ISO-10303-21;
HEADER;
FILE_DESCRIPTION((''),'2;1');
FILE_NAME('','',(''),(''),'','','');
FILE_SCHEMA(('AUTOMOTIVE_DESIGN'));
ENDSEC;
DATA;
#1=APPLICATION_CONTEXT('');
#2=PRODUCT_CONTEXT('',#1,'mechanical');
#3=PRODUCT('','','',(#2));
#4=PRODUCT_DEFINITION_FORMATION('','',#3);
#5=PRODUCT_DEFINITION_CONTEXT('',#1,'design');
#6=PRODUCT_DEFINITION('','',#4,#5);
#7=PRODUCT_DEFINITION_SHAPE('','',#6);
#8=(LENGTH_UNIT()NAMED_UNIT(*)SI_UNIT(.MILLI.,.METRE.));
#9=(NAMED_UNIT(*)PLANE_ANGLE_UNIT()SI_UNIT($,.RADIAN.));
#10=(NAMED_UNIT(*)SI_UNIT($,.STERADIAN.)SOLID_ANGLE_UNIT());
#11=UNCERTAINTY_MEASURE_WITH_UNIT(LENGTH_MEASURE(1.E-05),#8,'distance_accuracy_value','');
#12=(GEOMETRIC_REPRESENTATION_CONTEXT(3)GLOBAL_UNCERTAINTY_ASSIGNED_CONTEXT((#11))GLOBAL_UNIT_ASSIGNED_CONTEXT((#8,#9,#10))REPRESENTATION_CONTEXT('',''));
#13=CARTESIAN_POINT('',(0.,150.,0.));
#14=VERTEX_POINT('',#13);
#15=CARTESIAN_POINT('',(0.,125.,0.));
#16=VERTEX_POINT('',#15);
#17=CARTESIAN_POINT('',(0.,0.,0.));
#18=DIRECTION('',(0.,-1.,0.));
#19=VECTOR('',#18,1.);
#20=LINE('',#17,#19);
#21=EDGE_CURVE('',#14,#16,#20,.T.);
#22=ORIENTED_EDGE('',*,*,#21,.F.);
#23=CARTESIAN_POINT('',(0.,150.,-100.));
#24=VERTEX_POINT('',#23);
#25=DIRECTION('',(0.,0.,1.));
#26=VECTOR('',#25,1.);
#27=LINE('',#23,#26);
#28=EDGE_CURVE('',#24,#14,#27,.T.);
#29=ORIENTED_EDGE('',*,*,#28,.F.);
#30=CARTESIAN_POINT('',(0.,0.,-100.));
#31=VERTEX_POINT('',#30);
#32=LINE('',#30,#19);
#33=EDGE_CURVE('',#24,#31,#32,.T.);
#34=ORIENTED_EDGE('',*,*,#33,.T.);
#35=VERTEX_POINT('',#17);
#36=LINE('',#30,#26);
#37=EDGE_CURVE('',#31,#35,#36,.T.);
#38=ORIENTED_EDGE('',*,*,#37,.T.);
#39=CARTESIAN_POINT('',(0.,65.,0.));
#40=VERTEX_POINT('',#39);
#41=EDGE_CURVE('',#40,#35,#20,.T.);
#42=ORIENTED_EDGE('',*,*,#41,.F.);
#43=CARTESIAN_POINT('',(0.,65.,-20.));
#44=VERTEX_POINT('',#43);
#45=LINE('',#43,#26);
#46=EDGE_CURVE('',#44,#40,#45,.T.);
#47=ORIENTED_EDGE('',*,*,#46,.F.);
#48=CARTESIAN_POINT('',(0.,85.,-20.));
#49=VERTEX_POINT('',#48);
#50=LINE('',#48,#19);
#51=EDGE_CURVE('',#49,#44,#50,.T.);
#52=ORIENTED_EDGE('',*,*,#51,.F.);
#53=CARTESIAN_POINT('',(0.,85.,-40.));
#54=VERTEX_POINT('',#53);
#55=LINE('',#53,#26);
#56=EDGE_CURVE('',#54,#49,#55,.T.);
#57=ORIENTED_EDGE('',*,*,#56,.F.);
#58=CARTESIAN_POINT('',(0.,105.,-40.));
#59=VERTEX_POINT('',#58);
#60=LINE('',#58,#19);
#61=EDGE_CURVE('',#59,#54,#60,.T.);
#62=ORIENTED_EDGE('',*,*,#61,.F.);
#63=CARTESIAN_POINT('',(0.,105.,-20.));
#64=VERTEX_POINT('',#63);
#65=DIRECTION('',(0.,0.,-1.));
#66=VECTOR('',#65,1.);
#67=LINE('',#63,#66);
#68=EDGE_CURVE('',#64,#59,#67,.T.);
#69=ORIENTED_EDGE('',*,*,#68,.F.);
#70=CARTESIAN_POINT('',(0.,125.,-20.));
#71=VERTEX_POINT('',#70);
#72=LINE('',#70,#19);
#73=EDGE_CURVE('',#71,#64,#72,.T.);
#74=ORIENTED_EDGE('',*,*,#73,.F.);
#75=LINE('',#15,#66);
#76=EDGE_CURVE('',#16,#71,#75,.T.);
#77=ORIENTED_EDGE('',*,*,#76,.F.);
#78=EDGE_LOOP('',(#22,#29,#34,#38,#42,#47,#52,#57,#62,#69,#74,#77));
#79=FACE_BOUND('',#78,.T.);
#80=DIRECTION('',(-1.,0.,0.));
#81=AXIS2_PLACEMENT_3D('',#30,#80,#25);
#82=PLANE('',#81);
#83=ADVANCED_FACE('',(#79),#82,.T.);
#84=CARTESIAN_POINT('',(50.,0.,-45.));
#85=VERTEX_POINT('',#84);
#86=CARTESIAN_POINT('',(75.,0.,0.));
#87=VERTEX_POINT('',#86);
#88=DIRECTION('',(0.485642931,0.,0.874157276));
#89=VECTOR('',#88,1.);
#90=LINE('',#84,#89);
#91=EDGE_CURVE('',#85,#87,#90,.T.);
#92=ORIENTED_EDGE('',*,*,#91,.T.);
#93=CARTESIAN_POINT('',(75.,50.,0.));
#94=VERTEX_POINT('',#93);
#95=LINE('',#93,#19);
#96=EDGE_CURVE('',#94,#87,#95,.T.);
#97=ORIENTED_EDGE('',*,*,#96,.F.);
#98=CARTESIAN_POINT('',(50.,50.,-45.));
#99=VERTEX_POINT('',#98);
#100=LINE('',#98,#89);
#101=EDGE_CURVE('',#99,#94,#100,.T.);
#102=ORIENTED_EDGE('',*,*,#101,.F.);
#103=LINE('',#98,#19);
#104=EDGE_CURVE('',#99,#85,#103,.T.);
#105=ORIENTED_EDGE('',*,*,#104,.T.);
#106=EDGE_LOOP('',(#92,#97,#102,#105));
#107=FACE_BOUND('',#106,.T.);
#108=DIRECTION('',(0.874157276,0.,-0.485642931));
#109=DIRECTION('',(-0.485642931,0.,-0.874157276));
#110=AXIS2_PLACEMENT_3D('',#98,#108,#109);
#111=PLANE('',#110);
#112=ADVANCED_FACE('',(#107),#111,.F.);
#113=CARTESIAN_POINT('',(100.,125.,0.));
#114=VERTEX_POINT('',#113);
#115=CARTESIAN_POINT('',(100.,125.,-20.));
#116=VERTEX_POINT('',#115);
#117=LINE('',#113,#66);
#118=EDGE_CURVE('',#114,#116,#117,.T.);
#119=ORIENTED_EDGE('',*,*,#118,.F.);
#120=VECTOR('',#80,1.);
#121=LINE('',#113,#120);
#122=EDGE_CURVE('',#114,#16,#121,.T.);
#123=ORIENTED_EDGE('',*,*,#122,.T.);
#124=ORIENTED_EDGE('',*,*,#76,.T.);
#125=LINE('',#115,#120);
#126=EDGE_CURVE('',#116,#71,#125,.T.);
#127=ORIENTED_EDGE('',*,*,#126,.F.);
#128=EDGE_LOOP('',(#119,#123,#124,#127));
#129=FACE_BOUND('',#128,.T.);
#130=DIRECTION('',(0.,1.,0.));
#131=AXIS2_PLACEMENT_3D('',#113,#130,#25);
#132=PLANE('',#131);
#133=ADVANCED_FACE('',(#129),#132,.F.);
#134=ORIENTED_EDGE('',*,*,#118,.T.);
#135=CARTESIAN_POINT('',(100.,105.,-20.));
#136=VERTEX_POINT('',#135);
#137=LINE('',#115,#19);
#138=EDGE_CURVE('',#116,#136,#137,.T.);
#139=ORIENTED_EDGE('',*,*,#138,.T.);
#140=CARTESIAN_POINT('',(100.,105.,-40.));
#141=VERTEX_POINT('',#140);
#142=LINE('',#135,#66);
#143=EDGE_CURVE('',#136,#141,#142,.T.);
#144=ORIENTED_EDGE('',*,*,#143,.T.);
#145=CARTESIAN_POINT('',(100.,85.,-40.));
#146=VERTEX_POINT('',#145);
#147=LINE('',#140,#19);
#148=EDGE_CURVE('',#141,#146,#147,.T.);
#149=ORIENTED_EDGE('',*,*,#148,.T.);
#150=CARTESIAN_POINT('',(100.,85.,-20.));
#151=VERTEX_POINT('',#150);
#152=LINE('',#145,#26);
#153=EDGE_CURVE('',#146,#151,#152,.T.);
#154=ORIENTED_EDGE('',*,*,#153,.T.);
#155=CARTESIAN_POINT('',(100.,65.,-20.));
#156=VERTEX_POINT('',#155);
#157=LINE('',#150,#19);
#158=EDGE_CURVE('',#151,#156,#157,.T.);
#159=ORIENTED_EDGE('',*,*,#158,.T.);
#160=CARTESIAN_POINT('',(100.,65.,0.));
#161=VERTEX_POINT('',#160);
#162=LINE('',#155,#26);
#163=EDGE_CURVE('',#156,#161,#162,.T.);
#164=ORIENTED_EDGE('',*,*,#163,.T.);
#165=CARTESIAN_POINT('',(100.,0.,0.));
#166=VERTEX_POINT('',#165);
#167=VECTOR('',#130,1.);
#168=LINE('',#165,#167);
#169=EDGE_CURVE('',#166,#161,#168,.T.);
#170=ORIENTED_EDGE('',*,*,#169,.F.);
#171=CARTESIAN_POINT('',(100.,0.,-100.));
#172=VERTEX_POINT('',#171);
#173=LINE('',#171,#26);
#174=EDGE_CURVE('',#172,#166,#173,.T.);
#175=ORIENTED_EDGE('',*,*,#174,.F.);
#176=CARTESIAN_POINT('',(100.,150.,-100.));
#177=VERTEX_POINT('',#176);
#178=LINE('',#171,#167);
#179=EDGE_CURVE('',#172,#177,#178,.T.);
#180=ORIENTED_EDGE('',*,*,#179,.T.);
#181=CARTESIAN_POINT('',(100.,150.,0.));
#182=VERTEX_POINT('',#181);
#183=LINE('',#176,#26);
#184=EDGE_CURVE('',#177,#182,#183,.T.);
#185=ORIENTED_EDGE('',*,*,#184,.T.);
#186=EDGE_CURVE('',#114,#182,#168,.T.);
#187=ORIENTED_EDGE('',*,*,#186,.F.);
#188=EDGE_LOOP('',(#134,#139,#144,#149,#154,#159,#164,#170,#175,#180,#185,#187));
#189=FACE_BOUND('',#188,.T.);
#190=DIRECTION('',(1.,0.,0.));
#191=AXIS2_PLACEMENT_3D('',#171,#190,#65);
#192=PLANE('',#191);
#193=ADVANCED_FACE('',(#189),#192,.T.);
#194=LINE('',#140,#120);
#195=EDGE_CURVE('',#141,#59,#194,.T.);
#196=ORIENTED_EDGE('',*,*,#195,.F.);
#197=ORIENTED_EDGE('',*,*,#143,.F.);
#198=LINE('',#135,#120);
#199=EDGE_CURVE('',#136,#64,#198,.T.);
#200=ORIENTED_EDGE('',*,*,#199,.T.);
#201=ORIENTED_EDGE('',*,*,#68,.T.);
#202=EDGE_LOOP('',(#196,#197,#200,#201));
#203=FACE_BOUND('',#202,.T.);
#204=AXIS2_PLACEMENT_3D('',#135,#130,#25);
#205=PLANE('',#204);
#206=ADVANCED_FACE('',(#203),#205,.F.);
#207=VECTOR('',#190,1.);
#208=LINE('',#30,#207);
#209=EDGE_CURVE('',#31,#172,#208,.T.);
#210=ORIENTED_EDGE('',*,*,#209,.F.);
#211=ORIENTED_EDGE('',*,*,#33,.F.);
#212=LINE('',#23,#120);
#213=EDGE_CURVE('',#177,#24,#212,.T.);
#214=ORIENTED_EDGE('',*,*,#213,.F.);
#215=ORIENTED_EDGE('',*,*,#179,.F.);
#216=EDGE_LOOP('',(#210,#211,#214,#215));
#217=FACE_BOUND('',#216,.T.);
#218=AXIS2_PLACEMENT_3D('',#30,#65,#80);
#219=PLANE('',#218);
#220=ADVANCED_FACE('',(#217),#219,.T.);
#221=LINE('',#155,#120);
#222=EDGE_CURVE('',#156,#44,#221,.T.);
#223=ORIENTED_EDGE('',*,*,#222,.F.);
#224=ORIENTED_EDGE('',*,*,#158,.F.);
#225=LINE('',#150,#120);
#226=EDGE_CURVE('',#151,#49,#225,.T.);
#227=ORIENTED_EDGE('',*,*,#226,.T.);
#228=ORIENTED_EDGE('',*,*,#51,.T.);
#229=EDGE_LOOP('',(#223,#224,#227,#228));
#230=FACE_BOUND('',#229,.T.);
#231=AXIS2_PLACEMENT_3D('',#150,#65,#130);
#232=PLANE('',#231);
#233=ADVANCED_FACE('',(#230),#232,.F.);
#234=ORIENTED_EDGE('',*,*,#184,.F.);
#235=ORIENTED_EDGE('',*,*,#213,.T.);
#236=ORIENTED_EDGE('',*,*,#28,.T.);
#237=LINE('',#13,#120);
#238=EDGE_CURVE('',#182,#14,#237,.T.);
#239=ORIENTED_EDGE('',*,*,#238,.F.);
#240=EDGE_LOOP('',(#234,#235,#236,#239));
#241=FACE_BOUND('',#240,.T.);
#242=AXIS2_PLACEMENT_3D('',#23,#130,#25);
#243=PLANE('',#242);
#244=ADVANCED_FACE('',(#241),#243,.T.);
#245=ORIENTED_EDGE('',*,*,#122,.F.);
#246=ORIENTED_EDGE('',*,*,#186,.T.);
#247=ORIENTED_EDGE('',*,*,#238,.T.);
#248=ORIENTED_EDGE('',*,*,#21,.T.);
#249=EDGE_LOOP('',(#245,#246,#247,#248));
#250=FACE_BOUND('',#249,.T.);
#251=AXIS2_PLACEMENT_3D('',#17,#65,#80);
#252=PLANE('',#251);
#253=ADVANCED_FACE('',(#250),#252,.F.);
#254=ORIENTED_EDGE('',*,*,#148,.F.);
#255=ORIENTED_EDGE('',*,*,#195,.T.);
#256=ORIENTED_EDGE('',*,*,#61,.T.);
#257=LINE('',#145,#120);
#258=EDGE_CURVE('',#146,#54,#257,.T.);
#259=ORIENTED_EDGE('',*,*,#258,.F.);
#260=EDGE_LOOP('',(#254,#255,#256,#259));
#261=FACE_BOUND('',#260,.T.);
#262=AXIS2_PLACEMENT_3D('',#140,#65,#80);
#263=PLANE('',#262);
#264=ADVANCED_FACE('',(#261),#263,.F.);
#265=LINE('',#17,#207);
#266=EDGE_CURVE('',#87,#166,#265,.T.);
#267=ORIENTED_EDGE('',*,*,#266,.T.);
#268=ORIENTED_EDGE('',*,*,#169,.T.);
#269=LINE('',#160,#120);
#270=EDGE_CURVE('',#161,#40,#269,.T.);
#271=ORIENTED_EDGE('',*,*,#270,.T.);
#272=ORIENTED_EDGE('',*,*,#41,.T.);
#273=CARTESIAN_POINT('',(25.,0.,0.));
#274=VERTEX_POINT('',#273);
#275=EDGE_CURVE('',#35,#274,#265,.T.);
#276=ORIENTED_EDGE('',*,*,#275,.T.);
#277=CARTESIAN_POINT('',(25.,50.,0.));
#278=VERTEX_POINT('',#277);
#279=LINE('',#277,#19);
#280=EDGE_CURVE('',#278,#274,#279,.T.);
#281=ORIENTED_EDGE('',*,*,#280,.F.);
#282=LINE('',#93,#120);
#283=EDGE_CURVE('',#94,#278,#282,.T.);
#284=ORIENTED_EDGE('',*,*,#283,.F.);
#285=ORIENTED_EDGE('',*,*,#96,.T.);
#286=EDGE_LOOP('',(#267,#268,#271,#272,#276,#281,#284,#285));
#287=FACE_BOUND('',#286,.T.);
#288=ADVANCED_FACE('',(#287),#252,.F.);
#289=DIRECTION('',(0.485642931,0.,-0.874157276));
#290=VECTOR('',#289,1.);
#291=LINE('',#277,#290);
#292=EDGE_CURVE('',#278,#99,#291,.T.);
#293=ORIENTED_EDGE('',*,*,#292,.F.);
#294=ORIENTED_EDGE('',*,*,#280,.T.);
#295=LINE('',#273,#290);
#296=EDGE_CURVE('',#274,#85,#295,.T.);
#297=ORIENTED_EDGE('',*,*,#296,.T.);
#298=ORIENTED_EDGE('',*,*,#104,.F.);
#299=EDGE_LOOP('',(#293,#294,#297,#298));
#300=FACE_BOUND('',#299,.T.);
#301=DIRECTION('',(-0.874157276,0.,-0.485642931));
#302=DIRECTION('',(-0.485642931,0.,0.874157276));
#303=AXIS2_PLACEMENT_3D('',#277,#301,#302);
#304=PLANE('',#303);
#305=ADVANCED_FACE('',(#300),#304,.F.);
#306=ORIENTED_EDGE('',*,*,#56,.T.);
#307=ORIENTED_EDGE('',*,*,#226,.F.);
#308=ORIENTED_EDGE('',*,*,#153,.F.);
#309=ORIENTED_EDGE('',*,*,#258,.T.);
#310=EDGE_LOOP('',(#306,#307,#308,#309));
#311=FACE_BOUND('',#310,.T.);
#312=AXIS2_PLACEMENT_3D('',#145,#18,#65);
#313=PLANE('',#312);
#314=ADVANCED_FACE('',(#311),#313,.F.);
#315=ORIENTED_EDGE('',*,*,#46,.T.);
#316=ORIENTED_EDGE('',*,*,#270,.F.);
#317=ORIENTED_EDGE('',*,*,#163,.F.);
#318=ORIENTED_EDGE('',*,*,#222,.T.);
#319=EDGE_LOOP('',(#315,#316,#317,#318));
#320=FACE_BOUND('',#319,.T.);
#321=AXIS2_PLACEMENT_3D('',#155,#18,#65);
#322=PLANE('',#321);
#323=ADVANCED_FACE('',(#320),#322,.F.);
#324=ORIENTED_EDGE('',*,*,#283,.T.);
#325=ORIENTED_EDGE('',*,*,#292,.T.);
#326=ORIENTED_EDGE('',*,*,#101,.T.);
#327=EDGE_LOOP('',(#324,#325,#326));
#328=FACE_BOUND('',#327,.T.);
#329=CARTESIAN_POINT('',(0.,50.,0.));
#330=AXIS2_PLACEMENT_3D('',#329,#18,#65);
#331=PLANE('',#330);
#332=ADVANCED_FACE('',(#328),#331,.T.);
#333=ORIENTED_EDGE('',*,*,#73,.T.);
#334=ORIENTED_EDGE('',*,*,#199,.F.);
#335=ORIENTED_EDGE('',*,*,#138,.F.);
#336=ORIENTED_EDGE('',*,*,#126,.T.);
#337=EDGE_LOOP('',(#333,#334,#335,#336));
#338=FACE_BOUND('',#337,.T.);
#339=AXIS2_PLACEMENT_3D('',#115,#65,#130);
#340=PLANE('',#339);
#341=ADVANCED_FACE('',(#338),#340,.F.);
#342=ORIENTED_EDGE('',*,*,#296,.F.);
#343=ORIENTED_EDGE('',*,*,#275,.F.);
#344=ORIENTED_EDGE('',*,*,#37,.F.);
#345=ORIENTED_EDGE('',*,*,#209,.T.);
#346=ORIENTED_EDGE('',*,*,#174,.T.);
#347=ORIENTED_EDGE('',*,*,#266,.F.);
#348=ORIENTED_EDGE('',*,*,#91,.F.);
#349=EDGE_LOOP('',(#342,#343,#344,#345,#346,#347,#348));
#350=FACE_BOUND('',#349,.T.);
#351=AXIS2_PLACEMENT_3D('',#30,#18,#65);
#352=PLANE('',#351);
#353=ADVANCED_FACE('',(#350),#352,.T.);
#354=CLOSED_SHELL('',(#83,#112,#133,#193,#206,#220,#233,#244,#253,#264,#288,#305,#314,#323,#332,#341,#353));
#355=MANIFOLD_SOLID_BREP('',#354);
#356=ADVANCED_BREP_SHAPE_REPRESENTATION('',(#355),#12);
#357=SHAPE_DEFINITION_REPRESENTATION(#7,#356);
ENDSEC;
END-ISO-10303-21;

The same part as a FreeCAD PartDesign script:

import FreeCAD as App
import Part
import Sketcher

V = App.Vector
Q = App.Units.Quantity


def add_polygon(sketch, points):
    """Adds a closed chain of lines whose ends are joined by coincident constraints."""
    first, n = sketch.GeometryCount, len(points)
    for a, b in zip(points, points[1:] + points[:1]):
        sketch.addGeometry(Part.LineSegment(App.Vector(*a, 0), App.Vector(*b, 0)), False)
    for i in range(n):
        sketch.addConstraint(Sketcher.Constraint("Coincident", first + i, 2, first + (i + 1) % n, 1))

doc = App.newDocument("Part")
body = doc.addObject("PartDesign::Body", "Body")

# Sketch on XY plane
sketch1 = body.newObject("Sketcher::SketchObject", "Sketch")
sketch1.AttachmentSupport = (doc.getObject("XY_Plane"), [""])
sketch1.MapMode = "FlatFace"
add_polygon(sketch1, [(0, 150), (0, 0), (100, 0), (100, 150)])  # lines 0-3
sketch1.addConstraint(Sketcher.Constraint("Vertical", 0))
sketch1.addConstraint(Sketcher.Constraint("Horizontal", 1))
sketch1.addConstraint(Sketcher.Constraint("Vertical", 2))
sketch1.addConstraint(Sketcher.Constraint("Horizontal", 3))
sketch1.addConstraint(Sketcher.Constraint("Coincident", 0, 2, -1, 1))
sketch1.addConstraint(Sketcher.Constraint("DistanceX", 1, 1, 1, 2, Q("100 mm")))
sketch1.addConstraint(Sketcher.Constraint("DistanceY", 0, 2, 0, 1, Q("150 mm")))
pad1 = body.newObject("PartDesign::Pad", "Pad")
pad1.Profile = sketch1
pad1.Length = 100
pad1.Reversed = True

# Sketch on XZ plane
sketch2 = body.newObject("Sketcher::SketchObject", "Sketch001")
sketch2.AttachmentSupport = (doc.getObject("XZ_Plane"), [""])
sketch2.MapMode = "FlatFace"
add_polygon(sketch2, [(25, 0), (50, -45), (75, 0)])  # lines 0-2
sketch2.addConstraint(Sketcher.Constraint("Horizontal", 2))
sketch2.addConstraint(Sketcher.Constraint("PointOnObject", 1, 2, -1))
sketch2.addConstraint(Sketcher.Constraint("Equal", 0, 1))
sketch2.addConstraint(Sketcher.Constraint("DistanceX", 2, 2, 2, 1, Q("50 mm")))
sketch2.addConstraint(Sketcher.Constraint("DistanceX", -1, 1, 0, 2, Q("50 mm")))
sketch2.addConstraint(Sketcher.Constraint("DistanceY", 0, 2, -1, 1, Q("45 mm")))
pocket1 = body.newObject("PartDesign::Pocket", "Pocket")
pocket1.Profile = sketch2
pocket1.Length = 50

# Sketch on YZ plane
sketch3 = body.newObject("Sketcher::SketchObject", "Sketch002")
sketch3.AttachmentSupport = (doc.getObject("YZ_Plane"), [""])
sketch3.MapMode = "FlatFace"
add_polygon(sketch3, [(125, 0), (125, -20), (105, -20), (105, -40), (85, -40), (85, -20), (65, -20), (65, 0)])  # lines 0-7
sketch3.addConstraint(Sketcher.Constraint("Vertical", 0))
sketch3.addConstraint(Sketcher.Constraint("Horizontal", 1))
sketch3.addConstraint(Sketcher.Constraint("Vertical", 2))
sketch3.addConstraint(Sketcher.Constraint("Horizontal", 3))
sketch3.addConstraint(Sketcher.Constraint("Vertical", 4))
sketch3.addConstraint(Sketcher.Constraint("Horizontal", 5))
sketch3.addConstraint(Sketcher.Constraint("Vertical", 6))
sketch3.addConstraint(Sketcher.Constraint("Horizontal", 7))
sketch3.addConstraint(Sketcher.Constraint("PointOnObject", 6, 2, -1))
sketch3.addConstraint(Sketcher.Constraint("Horizontal", 1, 2, 4, 2))
sketch3.addConstraint(Sketcher.Constraint("Equal", 1, 3))
sketch3.addConstraint(Sketcher.Constraint("Equal", 3, 5))
sketch3.addConstraint(Sketcher.Constraint("Equal", 5, 0))
sketch3.addConstraint(Sketcher.Constraint("Equal", 0, 2))
sketch3.addConstraint(Sketcher.Constraint("DistanceX", 1, 2, 1, 1, Q("20 mm")))
sketch3.addConstraint(Sketcher.Constraint("DistanceX", -1, 1, 0, 2, Q("125 mm")))
pocket2 = body.newObject("PartDesign::Pocket", "Pocket001")
pocket2.Profile = sketch3
pocket2.Type = "ThroughAll"
pocket2.Reversed = True

doc.recompute()
